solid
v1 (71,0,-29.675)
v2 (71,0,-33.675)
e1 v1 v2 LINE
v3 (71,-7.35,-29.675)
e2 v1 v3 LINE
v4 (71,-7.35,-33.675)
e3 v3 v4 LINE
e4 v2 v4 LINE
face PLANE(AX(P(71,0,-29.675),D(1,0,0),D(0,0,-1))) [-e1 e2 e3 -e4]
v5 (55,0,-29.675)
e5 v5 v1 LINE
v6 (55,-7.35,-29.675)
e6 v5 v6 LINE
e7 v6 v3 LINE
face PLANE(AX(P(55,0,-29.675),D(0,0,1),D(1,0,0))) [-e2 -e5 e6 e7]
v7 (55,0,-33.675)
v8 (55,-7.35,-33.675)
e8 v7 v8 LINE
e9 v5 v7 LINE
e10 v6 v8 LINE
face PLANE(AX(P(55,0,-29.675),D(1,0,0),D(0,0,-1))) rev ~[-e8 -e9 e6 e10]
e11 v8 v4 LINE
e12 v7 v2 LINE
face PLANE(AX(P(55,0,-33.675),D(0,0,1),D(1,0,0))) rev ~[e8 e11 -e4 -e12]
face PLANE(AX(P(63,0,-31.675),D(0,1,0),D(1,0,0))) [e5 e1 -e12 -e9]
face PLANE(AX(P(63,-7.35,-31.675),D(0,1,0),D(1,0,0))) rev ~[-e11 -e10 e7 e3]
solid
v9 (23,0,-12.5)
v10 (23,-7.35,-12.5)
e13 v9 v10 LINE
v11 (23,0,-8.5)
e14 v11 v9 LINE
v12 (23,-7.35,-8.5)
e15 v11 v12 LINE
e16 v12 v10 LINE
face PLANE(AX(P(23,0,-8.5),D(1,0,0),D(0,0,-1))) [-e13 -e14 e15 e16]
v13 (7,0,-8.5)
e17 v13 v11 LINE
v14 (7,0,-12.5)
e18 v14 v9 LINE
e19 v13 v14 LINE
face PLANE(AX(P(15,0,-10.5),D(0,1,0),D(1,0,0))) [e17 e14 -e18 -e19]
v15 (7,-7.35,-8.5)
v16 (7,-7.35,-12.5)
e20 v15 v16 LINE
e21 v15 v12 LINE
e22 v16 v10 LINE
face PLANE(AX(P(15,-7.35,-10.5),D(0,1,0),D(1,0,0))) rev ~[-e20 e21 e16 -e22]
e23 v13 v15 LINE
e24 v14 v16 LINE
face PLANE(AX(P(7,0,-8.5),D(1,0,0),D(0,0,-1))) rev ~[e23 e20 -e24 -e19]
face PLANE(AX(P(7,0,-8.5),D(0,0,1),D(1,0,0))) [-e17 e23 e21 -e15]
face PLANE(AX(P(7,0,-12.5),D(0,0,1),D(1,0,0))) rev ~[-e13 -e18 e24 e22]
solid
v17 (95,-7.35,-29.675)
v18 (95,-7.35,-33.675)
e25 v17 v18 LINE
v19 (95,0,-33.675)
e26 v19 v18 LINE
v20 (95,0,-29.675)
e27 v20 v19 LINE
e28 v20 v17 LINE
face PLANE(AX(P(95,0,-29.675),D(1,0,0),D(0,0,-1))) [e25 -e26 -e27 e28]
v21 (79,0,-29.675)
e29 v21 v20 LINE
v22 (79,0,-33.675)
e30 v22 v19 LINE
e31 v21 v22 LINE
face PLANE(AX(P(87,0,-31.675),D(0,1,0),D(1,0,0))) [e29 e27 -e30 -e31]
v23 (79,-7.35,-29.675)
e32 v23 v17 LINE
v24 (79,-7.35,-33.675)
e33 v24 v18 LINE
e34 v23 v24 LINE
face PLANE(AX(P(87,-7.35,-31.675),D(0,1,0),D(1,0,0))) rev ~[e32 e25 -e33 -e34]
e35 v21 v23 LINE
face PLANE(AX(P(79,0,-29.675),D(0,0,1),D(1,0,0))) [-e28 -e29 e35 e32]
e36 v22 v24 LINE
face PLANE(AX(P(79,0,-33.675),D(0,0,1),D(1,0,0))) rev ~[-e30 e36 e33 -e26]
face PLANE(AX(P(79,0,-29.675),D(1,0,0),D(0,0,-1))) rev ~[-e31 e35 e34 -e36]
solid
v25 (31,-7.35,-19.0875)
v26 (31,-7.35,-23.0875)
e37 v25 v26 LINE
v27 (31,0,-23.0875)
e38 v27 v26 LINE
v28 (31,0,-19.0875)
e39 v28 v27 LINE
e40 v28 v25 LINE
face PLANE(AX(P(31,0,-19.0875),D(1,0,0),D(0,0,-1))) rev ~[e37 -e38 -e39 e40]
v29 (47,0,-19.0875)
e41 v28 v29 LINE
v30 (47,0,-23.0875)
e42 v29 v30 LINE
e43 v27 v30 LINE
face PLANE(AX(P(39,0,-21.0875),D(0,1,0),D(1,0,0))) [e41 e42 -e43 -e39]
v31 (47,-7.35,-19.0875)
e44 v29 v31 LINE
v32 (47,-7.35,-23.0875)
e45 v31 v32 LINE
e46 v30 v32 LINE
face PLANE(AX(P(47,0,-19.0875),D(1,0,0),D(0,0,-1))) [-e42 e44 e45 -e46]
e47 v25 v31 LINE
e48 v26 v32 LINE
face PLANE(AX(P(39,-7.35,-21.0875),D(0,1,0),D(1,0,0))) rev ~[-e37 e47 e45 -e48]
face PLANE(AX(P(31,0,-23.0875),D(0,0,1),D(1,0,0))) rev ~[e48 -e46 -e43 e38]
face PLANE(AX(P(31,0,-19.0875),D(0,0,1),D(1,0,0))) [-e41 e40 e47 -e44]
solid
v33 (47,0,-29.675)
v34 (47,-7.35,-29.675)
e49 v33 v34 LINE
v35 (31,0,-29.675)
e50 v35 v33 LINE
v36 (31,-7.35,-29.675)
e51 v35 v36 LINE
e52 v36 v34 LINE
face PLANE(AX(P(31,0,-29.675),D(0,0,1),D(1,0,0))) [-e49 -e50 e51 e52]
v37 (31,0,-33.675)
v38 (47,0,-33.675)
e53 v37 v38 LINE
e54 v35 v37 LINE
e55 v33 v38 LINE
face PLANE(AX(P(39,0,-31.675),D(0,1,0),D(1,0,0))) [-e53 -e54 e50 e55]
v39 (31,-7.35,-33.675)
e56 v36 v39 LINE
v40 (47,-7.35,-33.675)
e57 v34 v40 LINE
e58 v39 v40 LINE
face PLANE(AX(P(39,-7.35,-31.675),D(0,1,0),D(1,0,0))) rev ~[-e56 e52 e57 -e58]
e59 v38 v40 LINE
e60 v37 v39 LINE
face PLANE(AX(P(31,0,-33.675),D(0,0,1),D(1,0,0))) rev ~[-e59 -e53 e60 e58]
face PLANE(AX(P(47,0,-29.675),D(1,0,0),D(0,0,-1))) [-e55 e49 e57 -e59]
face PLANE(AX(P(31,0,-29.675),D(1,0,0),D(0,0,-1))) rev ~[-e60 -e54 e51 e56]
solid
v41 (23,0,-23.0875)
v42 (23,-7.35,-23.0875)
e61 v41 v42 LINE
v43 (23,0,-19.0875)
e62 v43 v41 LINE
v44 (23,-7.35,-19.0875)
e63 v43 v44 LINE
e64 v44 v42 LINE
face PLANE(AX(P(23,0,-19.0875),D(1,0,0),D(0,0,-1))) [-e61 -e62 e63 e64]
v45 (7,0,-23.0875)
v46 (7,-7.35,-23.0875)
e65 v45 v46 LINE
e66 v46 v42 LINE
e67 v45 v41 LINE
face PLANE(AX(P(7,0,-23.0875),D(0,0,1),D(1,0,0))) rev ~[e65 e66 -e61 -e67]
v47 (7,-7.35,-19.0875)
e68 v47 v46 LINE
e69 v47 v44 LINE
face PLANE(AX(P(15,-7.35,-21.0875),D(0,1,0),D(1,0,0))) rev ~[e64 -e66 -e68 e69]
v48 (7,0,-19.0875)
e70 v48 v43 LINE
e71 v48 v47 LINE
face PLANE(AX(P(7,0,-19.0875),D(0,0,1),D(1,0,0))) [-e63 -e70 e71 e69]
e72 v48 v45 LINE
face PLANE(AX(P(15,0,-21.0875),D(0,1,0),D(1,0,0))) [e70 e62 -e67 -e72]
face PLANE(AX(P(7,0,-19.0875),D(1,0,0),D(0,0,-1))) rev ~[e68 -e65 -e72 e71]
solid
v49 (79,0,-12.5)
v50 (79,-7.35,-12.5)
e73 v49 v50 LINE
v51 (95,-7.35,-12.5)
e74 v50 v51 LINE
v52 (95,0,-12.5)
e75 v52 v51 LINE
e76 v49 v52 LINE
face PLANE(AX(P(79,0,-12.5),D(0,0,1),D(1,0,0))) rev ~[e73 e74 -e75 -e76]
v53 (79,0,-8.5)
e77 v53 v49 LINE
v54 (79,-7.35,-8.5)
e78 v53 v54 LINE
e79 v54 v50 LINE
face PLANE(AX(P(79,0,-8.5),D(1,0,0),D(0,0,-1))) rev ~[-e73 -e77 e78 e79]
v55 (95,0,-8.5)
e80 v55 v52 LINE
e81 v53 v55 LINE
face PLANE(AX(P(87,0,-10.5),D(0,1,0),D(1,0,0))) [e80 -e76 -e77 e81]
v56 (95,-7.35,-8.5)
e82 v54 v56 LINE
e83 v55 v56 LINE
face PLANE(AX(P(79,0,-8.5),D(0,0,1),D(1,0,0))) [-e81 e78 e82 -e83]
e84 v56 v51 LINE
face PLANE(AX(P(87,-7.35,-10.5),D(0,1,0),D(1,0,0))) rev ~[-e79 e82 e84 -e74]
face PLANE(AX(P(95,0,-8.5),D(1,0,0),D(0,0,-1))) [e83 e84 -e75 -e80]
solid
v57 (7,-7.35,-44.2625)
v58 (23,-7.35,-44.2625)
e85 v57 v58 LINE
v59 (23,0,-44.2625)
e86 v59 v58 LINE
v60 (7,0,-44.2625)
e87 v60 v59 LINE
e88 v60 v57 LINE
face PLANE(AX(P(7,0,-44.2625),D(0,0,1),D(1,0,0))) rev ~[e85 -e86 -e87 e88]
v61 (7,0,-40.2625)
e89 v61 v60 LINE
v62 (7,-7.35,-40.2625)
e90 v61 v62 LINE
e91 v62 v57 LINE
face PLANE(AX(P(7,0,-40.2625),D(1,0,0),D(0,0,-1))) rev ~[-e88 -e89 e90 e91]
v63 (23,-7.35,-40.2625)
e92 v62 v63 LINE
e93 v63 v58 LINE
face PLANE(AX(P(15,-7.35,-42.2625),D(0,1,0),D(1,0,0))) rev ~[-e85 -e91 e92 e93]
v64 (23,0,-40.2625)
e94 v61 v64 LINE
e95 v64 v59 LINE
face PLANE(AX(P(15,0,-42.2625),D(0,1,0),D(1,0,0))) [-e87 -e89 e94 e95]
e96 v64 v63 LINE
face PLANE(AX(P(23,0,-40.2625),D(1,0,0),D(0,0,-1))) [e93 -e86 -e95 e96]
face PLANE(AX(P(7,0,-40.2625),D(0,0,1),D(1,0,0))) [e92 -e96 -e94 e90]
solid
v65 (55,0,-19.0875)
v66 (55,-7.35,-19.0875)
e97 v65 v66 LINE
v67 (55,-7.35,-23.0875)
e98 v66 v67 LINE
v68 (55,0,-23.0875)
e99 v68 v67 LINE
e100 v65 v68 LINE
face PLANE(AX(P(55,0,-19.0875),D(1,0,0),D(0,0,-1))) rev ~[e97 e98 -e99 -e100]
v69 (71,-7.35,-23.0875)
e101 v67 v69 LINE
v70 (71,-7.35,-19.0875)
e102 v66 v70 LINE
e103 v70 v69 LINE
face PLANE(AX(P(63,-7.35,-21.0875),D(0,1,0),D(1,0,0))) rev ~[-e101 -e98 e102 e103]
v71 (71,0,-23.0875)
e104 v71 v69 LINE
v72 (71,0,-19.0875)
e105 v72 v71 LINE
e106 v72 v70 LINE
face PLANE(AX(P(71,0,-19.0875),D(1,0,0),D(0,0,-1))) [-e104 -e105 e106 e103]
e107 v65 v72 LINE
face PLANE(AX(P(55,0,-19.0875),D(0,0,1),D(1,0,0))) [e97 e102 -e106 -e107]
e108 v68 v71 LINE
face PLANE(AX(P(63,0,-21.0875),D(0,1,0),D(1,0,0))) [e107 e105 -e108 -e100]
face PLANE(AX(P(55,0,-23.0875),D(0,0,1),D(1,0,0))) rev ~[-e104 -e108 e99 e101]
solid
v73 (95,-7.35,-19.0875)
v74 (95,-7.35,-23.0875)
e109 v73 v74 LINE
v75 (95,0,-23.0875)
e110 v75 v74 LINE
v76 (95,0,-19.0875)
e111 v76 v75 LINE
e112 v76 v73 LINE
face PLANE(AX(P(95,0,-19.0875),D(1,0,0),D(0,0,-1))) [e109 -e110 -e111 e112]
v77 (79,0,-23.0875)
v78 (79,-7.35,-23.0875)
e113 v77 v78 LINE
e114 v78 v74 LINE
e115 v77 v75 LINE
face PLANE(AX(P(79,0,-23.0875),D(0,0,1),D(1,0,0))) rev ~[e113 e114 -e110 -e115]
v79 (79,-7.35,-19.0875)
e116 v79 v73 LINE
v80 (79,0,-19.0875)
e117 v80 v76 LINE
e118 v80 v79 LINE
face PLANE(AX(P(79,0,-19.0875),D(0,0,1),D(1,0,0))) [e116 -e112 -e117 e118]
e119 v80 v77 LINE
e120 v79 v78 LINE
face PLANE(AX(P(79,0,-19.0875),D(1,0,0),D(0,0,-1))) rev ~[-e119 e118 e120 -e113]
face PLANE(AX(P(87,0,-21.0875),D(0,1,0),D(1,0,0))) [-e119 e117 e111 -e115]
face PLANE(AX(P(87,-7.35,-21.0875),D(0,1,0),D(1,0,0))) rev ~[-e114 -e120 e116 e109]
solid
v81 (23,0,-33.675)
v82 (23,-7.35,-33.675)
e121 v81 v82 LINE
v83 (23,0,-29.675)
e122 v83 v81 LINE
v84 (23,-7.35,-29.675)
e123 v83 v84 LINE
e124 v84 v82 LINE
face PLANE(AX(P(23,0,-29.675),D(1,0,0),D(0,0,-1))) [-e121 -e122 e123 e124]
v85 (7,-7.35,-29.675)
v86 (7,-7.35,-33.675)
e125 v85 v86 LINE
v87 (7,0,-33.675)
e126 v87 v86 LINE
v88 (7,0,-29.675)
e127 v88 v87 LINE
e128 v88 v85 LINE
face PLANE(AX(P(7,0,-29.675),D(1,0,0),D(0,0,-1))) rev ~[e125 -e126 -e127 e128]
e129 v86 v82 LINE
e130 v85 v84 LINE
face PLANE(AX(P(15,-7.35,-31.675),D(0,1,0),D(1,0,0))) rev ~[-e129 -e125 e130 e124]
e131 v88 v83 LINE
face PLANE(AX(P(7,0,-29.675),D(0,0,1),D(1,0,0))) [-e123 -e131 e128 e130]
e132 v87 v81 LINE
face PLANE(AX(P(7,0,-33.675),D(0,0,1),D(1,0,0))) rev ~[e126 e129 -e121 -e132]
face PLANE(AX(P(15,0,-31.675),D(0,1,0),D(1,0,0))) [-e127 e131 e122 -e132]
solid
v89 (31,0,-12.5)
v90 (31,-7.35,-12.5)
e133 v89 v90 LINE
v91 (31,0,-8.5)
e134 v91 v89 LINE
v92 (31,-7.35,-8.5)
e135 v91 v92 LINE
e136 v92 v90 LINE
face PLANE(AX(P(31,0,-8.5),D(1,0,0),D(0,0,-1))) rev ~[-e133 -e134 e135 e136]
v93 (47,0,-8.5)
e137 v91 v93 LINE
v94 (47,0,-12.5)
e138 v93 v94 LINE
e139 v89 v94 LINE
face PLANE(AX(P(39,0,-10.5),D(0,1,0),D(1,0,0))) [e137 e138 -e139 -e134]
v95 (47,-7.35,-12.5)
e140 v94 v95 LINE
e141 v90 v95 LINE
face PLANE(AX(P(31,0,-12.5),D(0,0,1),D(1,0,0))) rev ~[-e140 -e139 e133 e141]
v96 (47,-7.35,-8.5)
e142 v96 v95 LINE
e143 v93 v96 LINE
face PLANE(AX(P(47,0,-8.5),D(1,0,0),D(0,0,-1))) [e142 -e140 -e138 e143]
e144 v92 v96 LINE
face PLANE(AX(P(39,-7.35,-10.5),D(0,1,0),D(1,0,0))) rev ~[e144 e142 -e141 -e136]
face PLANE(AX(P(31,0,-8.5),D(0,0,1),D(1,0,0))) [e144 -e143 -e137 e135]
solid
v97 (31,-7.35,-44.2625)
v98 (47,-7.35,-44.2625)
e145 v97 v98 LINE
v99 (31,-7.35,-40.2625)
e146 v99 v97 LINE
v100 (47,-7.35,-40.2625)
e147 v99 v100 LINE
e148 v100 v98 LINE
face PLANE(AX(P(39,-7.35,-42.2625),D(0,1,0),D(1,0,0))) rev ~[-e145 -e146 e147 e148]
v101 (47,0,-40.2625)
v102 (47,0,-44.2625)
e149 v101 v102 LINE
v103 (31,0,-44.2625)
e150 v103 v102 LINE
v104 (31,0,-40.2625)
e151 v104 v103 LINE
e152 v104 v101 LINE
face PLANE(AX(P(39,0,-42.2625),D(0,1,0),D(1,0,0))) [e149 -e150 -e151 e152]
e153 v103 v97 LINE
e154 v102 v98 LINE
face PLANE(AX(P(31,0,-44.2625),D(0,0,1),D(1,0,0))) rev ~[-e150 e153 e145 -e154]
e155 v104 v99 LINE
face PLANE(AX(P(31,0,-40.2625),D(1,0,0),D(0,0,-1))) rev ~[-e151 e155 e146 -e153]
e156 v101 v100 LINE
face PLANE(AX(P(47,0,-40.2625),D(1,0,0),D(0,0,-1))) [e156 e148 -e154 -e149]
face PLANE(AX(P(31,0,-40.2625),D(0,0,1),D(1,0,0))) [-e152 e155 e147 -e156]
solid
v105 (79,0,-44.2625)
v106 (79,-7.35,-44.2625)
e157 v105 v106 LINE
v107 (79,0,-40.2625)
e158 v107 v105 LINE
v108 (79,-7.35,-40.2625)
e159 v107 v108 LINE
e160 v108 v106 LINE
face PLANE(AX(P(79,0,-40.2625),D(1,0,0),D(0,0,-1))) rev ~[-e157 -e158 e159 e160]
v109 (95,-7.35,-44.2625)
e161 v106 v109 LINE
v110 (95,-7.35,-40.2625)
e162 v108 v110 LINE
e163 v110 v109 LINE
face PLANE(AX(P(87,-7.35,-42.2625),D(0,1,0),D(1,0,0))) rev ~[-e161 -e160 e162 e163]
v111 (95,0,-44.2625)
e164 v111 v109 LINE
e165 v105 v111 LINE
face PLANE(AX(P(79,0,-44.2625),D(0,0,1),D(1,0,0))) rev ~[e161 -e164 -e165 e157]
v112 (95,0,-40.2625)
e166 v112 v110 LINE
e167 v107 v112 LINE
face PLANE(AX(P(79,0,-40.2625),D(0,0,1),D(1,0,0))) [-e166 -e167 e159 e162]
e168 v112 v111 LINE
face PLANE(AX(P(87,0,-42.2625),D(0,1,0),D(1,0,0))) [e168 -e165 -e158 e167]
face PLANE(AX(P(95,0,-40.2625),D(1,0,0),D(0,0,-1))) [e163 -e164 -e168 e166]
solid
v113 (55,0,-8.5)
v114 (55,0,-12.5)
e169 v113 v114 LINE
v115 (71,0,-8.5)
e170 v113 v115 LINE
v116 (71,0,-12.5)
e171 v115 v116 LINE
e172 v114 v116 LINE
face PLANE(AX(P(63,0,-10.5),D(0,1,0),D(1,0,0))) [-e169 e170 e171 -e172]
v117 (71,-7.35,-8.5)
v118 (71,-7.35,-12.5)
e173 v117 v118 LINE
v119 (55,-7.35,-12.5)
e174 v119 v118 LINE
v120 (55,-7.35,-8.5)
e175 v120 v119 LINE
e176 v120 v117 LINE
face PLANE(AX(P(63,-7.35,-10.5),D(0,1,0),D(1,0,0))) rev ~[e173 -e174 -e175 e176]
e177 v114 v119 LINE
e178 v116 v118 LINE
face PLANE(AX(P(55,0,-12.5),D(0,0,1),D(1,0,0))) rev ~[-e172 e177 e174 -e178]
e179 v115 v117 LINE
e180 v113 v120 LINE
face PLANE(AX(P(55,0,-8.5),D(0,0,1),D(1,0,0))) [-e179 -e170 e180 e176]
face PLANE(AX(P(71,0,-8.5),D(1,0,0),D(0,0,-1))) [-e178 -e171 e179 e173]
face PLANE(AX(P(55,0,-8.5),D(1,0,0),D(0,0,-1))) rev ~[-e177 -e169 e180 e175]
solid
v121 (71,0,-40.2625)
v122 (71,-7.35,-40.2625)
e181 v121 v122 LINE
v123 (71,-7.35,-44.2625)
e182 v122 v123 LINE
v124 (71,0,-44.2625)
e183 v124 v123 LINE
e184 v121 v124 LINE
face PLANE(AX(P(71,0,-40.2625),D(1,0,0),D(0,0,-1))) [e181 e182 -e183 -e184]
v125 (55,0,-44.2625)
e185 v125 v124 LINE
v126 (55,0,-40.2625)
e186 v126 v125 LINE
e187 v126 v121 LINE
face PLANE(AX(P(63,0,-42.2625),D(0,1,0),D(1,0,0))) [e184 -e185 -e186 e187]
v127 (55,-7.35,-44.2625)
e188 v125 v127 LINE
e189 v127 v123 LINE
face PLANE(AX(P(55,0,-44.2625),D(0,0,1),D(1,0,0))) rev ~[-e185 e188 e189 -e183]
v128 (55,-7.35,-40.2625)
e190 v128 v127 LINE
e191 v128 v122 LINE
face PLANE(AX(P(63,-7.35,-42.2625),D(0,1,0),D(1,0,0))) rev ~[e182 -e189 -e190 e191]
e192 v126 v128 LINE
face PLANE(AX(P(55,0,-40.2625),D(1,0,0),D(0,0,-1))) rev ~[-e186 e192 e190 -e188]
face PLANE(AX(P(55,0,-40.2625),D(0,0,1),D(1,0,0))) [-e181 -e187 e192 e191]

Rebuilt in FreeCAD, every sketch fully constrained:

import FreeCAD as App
import Part
import Sketcher
from FreeCAD import Vector

doc = App.newDocument("Part")
params = doc.addObject("Spreadsheet::Sheet", "Params")
for row, (alias, value) in enumerate([
    ("sketch1_width", "16 mm"),
    ("sketch1_height", "4 mm"),
    ("pad1_length", "7.35 mm"),
    ("sketch2_width", "16 mm"),
    ("sketch2_height", "4 mm"),
    ("pad2_length", "7.35 mm"),
    ("sketch3_width", "16 mm"),
    ("sketch3_height", "4 mm"),
    ("pad3_length", "7.35 mm"),
    ("sketch4_width", "16 mm"),
    ("sketch4_height", "4 mm"),
    ("pad4_length", "7.35 mm"),
    ("sketch5_width", "16 mm"),
    ("sketch5_height", "4 mm"),
    ("pad5_length", "7.35 mm"),
    ("sketch6_width", "16 mm"),
    ("sketch6_height", "4 mm"),
    ("pad6_length", "7.35 mm"),
    ("sketch7_width", "16 mm"),
    ("sketch7_height", "4 mm"),
    ("pad7_length", "7.35 mm"),
    ("sketch8_width", "16 mm"),
    ("sketch8_height", "4 mm"),
    ("pad8_length", "7.35 mm"),
    ("sketch9_width", "16 mm"),
    ("sketch9_height", "4 mm"),
    ("pad9_length", "7.35 mm"),
    ("sketch10_width", "16 mm"),
    ("sketch10_height", "4 mm"),
    ("pad10_length", "7.35 mm"),
    ("sketch11_width", "16 mm"),
    ("sketch11_height", "4 mm"),
    ("pad11_length", "7.35 mm"),
    ("sketch12_width", "16 mm"),
    ("sketch12_height", "4 mm"),
    ("pad12_length", "7.35 mm"),
    ("sketch13_width", "16 mm"),
    ("sketch13_height", "4 mm"),
    ("pad13_length", "7.35 mm"),
    ("sketch14_width", "16 mm"),
    ("sketch14_height", "4 mm"),
    ("pad14_length", "7.35 mm"),
    ("sketch15_width", "16 mm"),
    ("sketch15_height", "4 mm"),
    ("pad15_length", "7.35 mm"),
    ("sketch16_width", "16 mm"),
    ("sketch16_height", "4 mm"),
    ("pad16_length", "7.35 mm"),
], start=1):
    params.set(f"A{row}", alias)
    params.set(f"B{row}", "=" + value)
    params.setAlias(f"B{row}", alias)

body = doc.addObject("PartDesign::Body", "Body")

# Sketch on XZ plane
sketch1 = body.newObject("Sketcher::SketchObject", "Sketch")
sketch1.AttachmentSupport = (doc.getObject("XZ_Plane"), [""])
sketch1.MapMode = "FlatFace"
sketch1.addGeometry([
    Part.LineSegment(Vector(31, -12.5, 0), Vector(31, -8.5, 0)),
    Part.LineSegment(Vector(31, -8.5, 0), Vector(47, -8.5, 0)),
    Part.LineSegment(Vector(47, -8.5, 0), Vector(47, -12.5, 0)),
    Part.LineSegment(Vector(47, -12.5, 0), Vector(31, -12.5, 0)),
], False)
sketch1.addConstraint([
    Sketcher.Constraint("Coincident", 0, 2, 1, 1),
    Sketcher.Constraint("Coincident", 1, 2, 2, 1),
    Sketcher.Constraint("Coincident", 2, 2, 3, 1),
    Sketcher.Constraint("Coincident", 3, 2, 0, 1),
    Sketcher.Constraint("Vertical", 0),
    Sketcher.Constraint("Horizontal", 1),
    Sketcher.Constraint("Vertical", 2),
    Sketcher.Constraint("Horizontal", 3),
    Sketcher.Constraint("DistanceX", 1, 1, 1, 2, 16.0),
    Sketcher.Constraint("DistanceY", 0, 1, 0, 2, 4.0),
    Sketcher.Constraint("DistanceX", -1, 1, 0, 2, 31.0),
    Sketcher.Constraint("DistanceY", 0, 2, -1, 1, 8.5),
])
sketch1.setExpression("Constraints[8]", "Params.sketch1_width")
sketch1.setExpression("Constraints[9]", "Params.sketch1_height")
pad1 = body.newObject("PartDesign::Pad", "Pad")
pad1.Profile = sketch1
pad1.setExpression("Length", "Params.pad1_length")
body2 = doc.addObject("PartDesign::Body", "Body001")

# Sketch on XZ plane
sketch2 = body2.newObject("Sketcher::SketchObject", "Sketch001")
sketch2.AttachmentSupport = (doc.getObject("XZ_Plane001"), [""])
sketch2.MapMode = "FlatFace"
sketch2.addGeometry([
    Part.LineSegment(Vector(7, -12.5, 0), Vector(7, -8.5, 0)),
    Part.LineSegment(Vector(7, -8.5, 0), Vector(23, -8.5, 0)),
    Part.LineSegment(Vector(23, -8.5, 0), Vector(23, -12.5, 0)),
    Part.LineSegment(Vector(23, -12.5, 0), Vector(7, -12.5, 0)),
], False)
sketch2.addConstraint([
    Sketcher.Constraint("Coincident", 0, 2, 1, 1),
    Sketcher.Constraint("Coincident", 1, 2, 2, 1),
    Sketcher.Constraint("Coincident", 2, 2, 3, 1),
    Sketcher.Constraint("Coincident", 3, 2, 0, 1),
    Sketcher.Constraint("Vertical", 0),
    Sketcher.Constraint("Horizontal", 1),
    Sketcher.Constraint("Vertical", 2),
    Sketcher.Constraint("Horizontal", 3),
    Sketcher.Constraint("DistanceX", 1, 1, 1, 2, 16.0),
    Sketcher.Constraint("DistanceY", 0, 1, 0, 2, 4.0),
    Sketcher.Constraint("DistanceX", -1, 1, 0, 2, 7.0),
    Sketcher.Constraint("DistanceY", 0, 2, -1, 1, 8.5),
])
sketch2.setExpression("Constraints[8]", "Params.sketch2_width")
sketch2.setExpression("Constraints[9]", "Params.sketch2_height")
pad2 = body2.newObject("PartDesign::Pad", "Pad001")
pad2.Profile = sketch2
pad2.setExpression("Length", "Params.pad2_length")
body3 = doc.addObject("PartDesign::Body", "Body002")

# Sketch on XZ plane
sketch3 = body3.newObject("Sketcher::SketchObject", "Sketch002")
sketch3.AttachmentSupport = (doc.getObject("XZ_Plane002"), [""])
sketch3.MapMode = "FlatFace"
sketch3.addGeometry([
    Part.LineSegment(Vector(55, -12.5, 0), Vector(55, -8.5, 0)),
    Part.LineSegment(Vector(55, -8.5, 0), Vector(71, -8.5, 0)),
    Part.LineSegment(Vector(71, -8.5, 0), Vector(71, -12.5, 0)),
    Part.LineSegment(Vector(71, -12.5, 0), Vector(55, -12.5, 0)),
], False)
sketch3.addConstraint([
    Sketcher.Constraint("Coincident", 0, 2, 1, 1),
    Sketcher.Constraint("Coincident", 1, 2, 2, 1),
    Sketcher.Constraint("Coincident", 2, 2, 3, 1),
    Sketcher.Constraint("Coincident", 3, 2, 0, 1),
    Sketcher.Constraint("Vertical", 0),
    Sketcher.Constraint("Horizontal", 1),
    Sketcher.Constraint("Vertical", 2),
    Sketcher.Constraint("Horizontal", 3),
    Sketcher.Constraint("DistanceX", 1, 1, 1, 2, 16.0),
    Sketcher.Constraint("DistanceY", 0, 1, 0, 2, 4.0),
    Sketcher.Constraint("DistanceX", -1, 1, 0, 2, 55.0),
    Sketcher.Constraint("DistanceY", 0, 2, -1, 1, 8.5),
])
sketch3.setExpression("Constraints[8]", "Params.sketch3_width")
sketch3.setExpression("Constraints[9]", "Params.sketch3_height")
pad3 = body3.newObject("PartDesign::Pad", "Pad002")
pad3.Profile = sketch3
pad3.setExpression("Length", "Params.pad3_length")
body4 = doc.addObject("PartDesign::Body", "Body003")

# Sketch on XZ plane
sketch4 = body4.newObject("Sketcher::SketchObject", "Sketch003")
sketch4.AttachmentSupport = (doc.getObject("XZ_Plane003"), [""])
sketch4.MapMode = "FlatFace"
sketch4.addGeometry([
    Part.LineSegment(Vector(79, -12.5, 0), Vector(79, -8.5, 0)),
    Part.LineSegment(Vector(79, -8.5, 0), Vector(95, -8.5, 0)),
    Part.LineSegment(Vector(95, -8.5, 0), Vector(95, -12.5, 0)),
    Part.LineSegment(Vector(95, -12.5, 0), Vector(79, -12.5, 0)),
], False)
sketch4.addConstraint([
    Sketcher.Constraint("Coincident", 0, 2, 1, 1),
    Sketcher.Constraint("Coincident", 1, 2, 2, 1),
    Sketcher.Constraint("Coincident", 2, 2, 3, 1),
    Sketcher.Constraint("Coincident", 3, 2, 0, 1),
    Sketcher.Constraint("Vertical", 0),
    Sketcher.Constraint("Horizontal", 1),
    Sketcher.Constraint("Vertical", 2),
    Sketcher.Constraint("Horizontal", 3),
    Sketcher.Constraint("DistanceX", 1, 1, 1, 2, 16.0),
    Sketcher.Constraint("DistanceY", 0, 1, 0, 2, 4.0),
    Sketcher.Constraint("DistanceX", -1, 1, 0, 2, 79.0),
    Sketcher.Constraint("DistanceY", 0, 2, -1, 1, 8.5),
])
sketch4.setExpression("Constraints[8]", "Params.sketch4_width")
sketch4.setExpression("Constraints[9]", "Params.sketch4_height")
pad4 = body4.newObject("PartDesign::Pad", "Pad003")
pad4.Profile = sketch4
pad4.setExpression("Length", "Params.pad4_length")
body5 = doc.addObject("PartDesign::Body", "Body004")

# Sketch on XZ plane
sketch5 = body5.newObject("Sketcher::SketchObject", "Sketch004")
sketch5.AttachmentSupport = (doc.getObject("XZ_Plane004"), [""])
sketch5.MapMode = "FlatFace"
sketch5.addGeometry([
    Part.LineSegment(Vector(7, -23.1, 0), Vector(7, -19.1, 0)),
    Part.LineSegment(Vector(7, -19.1, 0), Vector(23, -19.1, 0)),
    Part.LineSegment(Vector(23, -19.1, 0), Vector(23, -23.1, 0)),
    Part.LineSegment(Vector(23, -23.1, 0), Vector(7, -23.1, 0)),
], False)
sketch5.addConstraint([
    Sketcher.Constraint("Coincident", 0, 2, 1, 1),
    Sketcher.Constraint("Coincident", 1, 2, 2, 1),
    Sketcher.Constraint("Coincident", 2, 2, 3, 1),
    Sketcher.Constraint("Coincident", 3, 2, 0, 1),
    Sketcher.Constraint("Vertical", 0),
    Sketcher.Constraint("Horizontal", 1),
    Sketcher.Constraint("Vertical", 2),
    Sketcher.Constraint("Horizontal", 3),
    Sketcher.Constraint("DistanceX", 1, 1, 1, 2, 16.0),
    Sketcher.Constraint("DistanceY", 0, 1, 0, 2, 4.0),
    Sketcher.Constraint("DistanceX", -1, 1, 0, 2, 7.0),
    Sketcher.Constraint("DistanceY", 0, 2, -1, 1, 19.0875),
])
sketch5.setExpression("Constraints[8]", "Params.sketch5_width")
sketch5.setExpression("Constraints[9]", "Params.sketch5_height")
pad5 = body5.newObject("PartDesign::Pad", "Pad004")
pad5.Profile = sketch5
pad5.setExpression("Length", "Params.pad5_length")
body6 = doc.addObject("PartDesign::Body", "Body005")

# Sketch on XZ plane
sketch6 = body6.newObject("Sketcher::SketchObject", "Sketch005")
sketch6.AttachmentSupport = (doc.getObject("XZ_Plane005"), [""])
sketch6.MapMode = "FlatFace"
sketch6.addGeometry([
    Part.LineSegment(Vector(31, -23.1, 0), Vector(31, -19.1, 0)),
    Part.LineSegment(Vector(31, -19.1, 0), Vector(47, -19.1, 0)),
    Part.LineSegment(Vector(47, -19.1, 0), Vector(47, -23.1, 0)),
    Part.LineSegment(Vector(47, -23.1, 0), Vector(31, -23.1, 0)),
], False)
sketch6.addConstraint([
    Sketcher.Constraint("Coincident", 0, 2, 1, 1),
    Sketcher.Constraint("Coincident", 1, 2, 2, 1),
    Sketcher.Constraint("Coincident", 2, 2, 3, 1),
    Sketcher.Constraint("Coincident", 3, 2, 0, 1),
    Sketcher.Constraint("Vertical", 0),
    Sketcher.Constraint("Horizontal", 1),
    Sketcher.Constraint("Vertical", 2),
    Sketcher.Constraint("Horizontal", 3),
    Sketcher.Constraint("DistanceX", 1, 1, 1, 2, 16.0),
    Sketcher.Constraint("DistanceY", 0, 1, 0, 2, 4.0),
    Sketcher.Constraint("DistanceX", -1, 1, 0, 2, 31.0),
    Sketcher.Constraint("DistanceY", 0, 2, -1, 1, 19.0875),
])
sketch6.setExpression("Constraints[8]", "Params.sketch6_width")
sketch6.setExpression("Constraints[9]", "Params.sketch6_height")
pad6 = body6.newObject("PartDesign::Pad", "Pad005")
pad6.Profile = sketch6
pad6.setExpression("Length", "Params.pad6_length")
body7 = doc.addObject("PartDesign::Body", "Body006")

# Sketch on XZ plane
sketch7 = body7.newObject("Sketcher::SketchObject", "Sketch006")
sketch7.AttachmentSupport = (doc.getObject("XZ_Plane006"), [""])
sketch7.MapMode = "FlatFace"
sketch7.addGeometry([
    Part.LineSegment(Vector(55, -23.1, 0), Vector(55, -19.1, 0)),
    Part.LineSegment(Vector(55, -19.1, 0), Vector(71, -19.1, 0)),
    Part.LineSegment(Vector(71, -19.1, 0), Vector(71, -23.1, 0)),
    Part.LineSegment(Vector(71, -23.1, 0), Vector(55, -23.1, 0)),
], False)
sketch7.addConstraint([
    Sketcher.Constraint("Coincident", 0, 2, 1, 1),
    Sketcher.Constraint("Coincident", 1, 2, 2, 1),
    Sketcher.Constraint("Coincident", 2, 2, 3, 1),
    Sketcher.Constraint("Coincident", 3, 2, 0, 1),
    Sketcher.Constraint("Vertical", 0),
    Sketcher.Constraint("Horizontal", 1),
    Sketcher.Constraint("Vertical", 2),
    Sketcher.Constraint("Horizontal", 3),
    Sketcher.Constraint("DistanceX", 1, 1, 1, 2, 16.0),
    Sketcher.Constraint("DistanceY", 0, 1, 0, 2, 4.0),
    Sketcher.Constraint("DistanceX", -1, 1, 0, 2, 55.0),
    Sketcher.Constraint("DistanceY", 0, 2, -1, 1, 19.0875),
])
sketch7.setExpression("Constraints[8]", "Params.sketch7_width")
sketch7.setExpression("Constraints[9]", "Params.sketch7_height")
pad7 = body7.newObject("PartDesign::Pad", "Pad006")
pad7.Profile = sketch7
pad7.setExpression("Length", "Params.pad7_length")
body8 = doc.addObject("PartDesign::Body", "Body007")

# Sketch on XZ plane
sketch8 = body8.newObject("Sketcher::SketchObject", "Sketch007")
sketch8.AttachmentSupport = (doc.getObject("XZ_Plane007"), [""])
sketch8.MapMode = "FlatFace"
sketch8.addGeometry([
    Part.LineSegment(Vector(79, -23.1, 0), Vector(79, -19.1, 0)),
    Part.LineSegment(Vector(79, -19.1, 0), Vector(95, -19.1, 0)),
    Part.LineSegment(Vector(95, -19.1, 0), Vector(95, -23.1, 0)),
    Part.LineSegment(Vector(95, -23.1, 0), Vector(79, -23.1, 0)),
], False)
sketch8.addConstraint([
    Sketcher.Constraint("Coincident", 0, 2, 1, 1),
    Sketcher.Constraint("Coincident", 1, 2, 2, 1),
    Sketcher.Constraint("Coincident", 2, 2, 3, 1),
    Sketcher.Constraint("Coincident", 3, 2, 0, 1),
    Sketcher.Constraint("Vertical", 0),
    Sketcher.Constraint("Horizontal", 1),
    Sketcher.Constraint("Vertical", 2),
    Sketcher.Constraint("Horizontal", 3),
    Sketcher.Constraint("DistanceX", 1, 1, 1, 2, 16.0),
    Sketcher.Constraint("DistanceY", 0, 1, 0, 2, 4.0),
    Sketcher.Constraint("DistanceX", -1, 1, 0, 2, 79.0),
    Sketcher.Constraint("DistanceY", 0, 2, -1, 1, 19.0875),
])
sketch8.setExpression("Constraints[8]", "Params.sketch8_width")
sketch8.setExpression("Constraints[9]", "Params.sketch8_height")
pad8 = body8.newObject("PartDesign::Pad", "Pad007")
pad8.Profile = sketch8
pad8.setExpression("Length", "Params.pad8_length")
body9 = doc.addObject("PartDesign::Body", "Body008")

# Sketch on XZ plane
sketch9 = body9.newObject("Sketcher::SketchObject", "Sketch008")
sketch9.AttachmentSupport = (doc.getObject("XZ_Plane008"), [""])
sketch9.MapMode = "FlatFace"
sketch9.addGeometry([
    Part.LineSegment(Vector(7, -33.7, 0), Vector(7, -29.7, 0)),
    Part.LineSegment(Vector(7, -29.7, 0), Vector(23, -29.7, 0)),
    Part.LineSegment(Vector(23, -29.7, 0), Vector(23, -33.7, 0)),
    Part.LineSegment(Vector(23, -33.7, 0), Vector(7, -33.7, 0)),
], False)
sketch9.addConstraint([
    Sketcher.Constraint("Coincident", 0, 2, 1, 1),
    Sketcher.Constraint("Coincident", 1, 2, 2, 1),
    Sketcher.Constraint("Coincident", 2, 2, 3, 1),
    Sketcher.Constraint("Coincident", 3, 2, 0, 1),
    Sketcher.Constraint("Vertical", 0),
    Sketcher.Constraint("Horizontal", 1),
    Sketcher.Constraint("Vertical", 2),
    Sketcher.Constraint("Horizontal", 3),
    Sketcher.Constraint("DistanceX", 1, 1, 1, 2, 16.0),
    Sketcher.Constraint("DistanceY", 0, 1, 0, 2, 4.0),
    Sketcher.Constraint("DistanceX", -1, 1, 0, 2, 7.0),
    Sketcher.Constraint("DistanceY", 0, 2, -1, 1, 29.675),
])
sketch9.setExpression("Constraints[8]", "Params.sketch9_width")
sketch9.setExpression("Constraints[9]", "Params.sketch9_height")
pad9 = body9.newObject("PartDesign::Pad", "Pad008")
pad9.Profile = sketch9
pad9.setExpression("Length", "Params.pad9_length")
body10 = doc.addObject("PartDesign::Body", "Body009")

# Sketch on XZ plane
sketch10 = body10.newObject("Sketcher::SketchObject", "Sketch009")
sketch10.AttachmentSupport = (doc.getObject("XZ_Plane009"), [""])
sketch10.MapMode = "FlatFace"
sketch10.addGeometry([
    Part.LineSegment(Vector(31, -33.7, 0), Vector(31, -29.7, 0)),
    Part.LineSegment(Vector(31, -29.7, 0), Vector(47, -29.7, 0)),
    Part.LineSegment(Vector(47, -29.7, 0), Vector(47, -33.7, 0)),
    Part.LineSegment(Vector(47, -33.7, 0), Vector(31, -33.7, 0)),
], False)
sketch10.addConstraint([
    Sketcher.Constraint("Coincident", 0, 2, 1, 1),
    Sketcher.Constraint("Coincident", 1, 2, 2, 1),
    Sketcher.Constraint("Coincident", 2, 2, 3, 1),
    Sketcher.Constraint("Coincident", 3, 2, 0, 1),
    Sketcher.Constraint("Vertical", 0),
    Sketcher.Constraint("Horizontal", 1),
    Sketcher.Constraint("Vertical", 2),
    Sketcher.Constraint("Horizontal", 3),
    Sketcher.Constraint("DistanceX", 1, 1, 1, 2, 16.0),
    Sketcher.Constraint("DistanceY", 0, 1, 0, 2, 4.0),
    Sketcher.Constraint("DistanceX", -1, 1, 0, 2, 31.0),
    Sketcher.Constraint("DistanceY", 0, 2, -1, 1, 29.675),
])
sketch10.setExpression("Constraints[8]", "Params.sketch10_width")
sketch10.setExpression("Constraints[9]", "Params.sketch10_height")
pad10 = body10.newObject("PartDesign::Pad", "Pad009")
pad10.Profile = sketch10
pad10.setExpression("Length", "Params.pad10_length")
body11 = doc.addObject("PartDesign::Body", "Body010")

# Sketch on XZ plane
sketch11 = body11.newObject("Sketcher::SketchObject", "Sketch010")
sketch11.AttachmentSupport = (doc.getObject("XZ_Plane010"), [""])
sketch11.MapMode = "FlatFace"
sketch11.addGeometry([
    Part.LineSegment(Vector(55, -33.7, 0), Vector(55, -29.7, 0)),
    Part.LineSegment(Vector(55, -29.7, 0), Vector(71, -29.7, 0)),
    Part.LineSegment(Vector(71, -29.7, 0), Vector(71, -33.7, 0)),
    Part.LineSegment(Vector(71, -33.7, 0), Vector(55, -33.7, 0)),
], False)
sketch11.addConstraint([
    Sketcher.Constraint("Coincident", 0, 2, 1, 1),
    Sketcher.Constraint("Coincident", 1, 2, 2, 1),
    Sketcher.Constraint("Coincident", 2, 2, 3, 1),
    Sketcher.Constraint("Coincident", 3, 2, 0, 1),
    Sketcher.Constraint("Vertical", 0),
    Sketcher.Constraint("Horizontal", 1),
    Sketcher.Constraint("Vertical", 2),
    Sketcher.Constraint("Horizontal", 3),
    Sketcher.Constraint("DistanceX", 1, 1, 1, 2, 16.0),
    Sketcher.Constraint("DistanceY", 0, 1, 0, 2, 4.0),
    Sketcher.Constraint("DistanceX", -1, 1, 0, 2, 55.0),
    Sketcher.Constraint("DistanceY", 0, 2, -1, 1, 29.675),
])
sketch11.setExpression("Constraints[8]", "Params.sketch11_width")
sketch11.setExpression("Constraints[9]", "Params.sketch11_height")
pad11 = body11.newObject("PartDesign::Pad", "Pad010")
pad11.Profile = sketch11
pad11.setExpression("Length", "Params.pad11_length")
body12 = doc.addObject("PartDesign::Body", "Body011")

# Sketch on XZ plane
sketch12 = body12.newObject("Sketcher::SketchObject", "Sketch011")
sketch12.AttachmentSupport = (doc.getObject("XZ_Plane011"), [""])
sketch12.MapMode = "FlatFace"
sketch12.addGeometry([
    Part.LineSegment(Vector(79, -33.7, 0), Vector(79, -29.7, 0)),
    Part.LineSegment(Vector(79, -29.7, 0), Vector(95, -29.7, 0)),
    Part.LineSegment(Vector(95, -29.7, 0), Vector(95, -33.7, 0)),
    Part.LineSegment(Vector(95, -33.7, 0), Vector(79, -33.7, 0)),
], False)
sketch12.addConstraint([
    Sketcher.Constraint("Coincident", 0, 2, 1, 1),
    Sketcher.Constraint("Coincident", 1, 2, 2, 1),
    Sketcher.Constraint("Coincident", 2, 2, 3, 1),
    Sketcher.Constraint("Coincident", 3, 2, 0, 1),
    Sketcher.Constraint("Vertical", 0),
    Sketcher.Constraint("Horizontal", 1),
    Sketcher.Constraint("Vertical", 2),
    Sketcher.Constraint("Horizontal", 3),
    Sketcher.Constraint("DistanceX", 1, 1, 1, 2, 16.0),
    Sketcher.Constraint("DistanceY", 0, 1, 0, 2, 4.0),
    Sketcher.Constraint("DistanceX", -1, 1, 0, 2, 79.0),
    Sketcher.Constraint("DistanceY", 0, 2, -1, 1, 29.675),
])
sketch12.setExpression("Constraints[8]", "Params.sketch12_width")
sketch12.setExpression("Constraints[9]", "Params.sketch12_height")
pad12 = body12.newObject("PartDesign::Pad", "Pad011")
pad12.Profile = sketch12
pad12.setExpression("Length", "Params.pad12_length")
body13 = doc.addObject("PartDesign::Body", "Body012")

# Sketch on XZ plane
sketch13 = body13.newObject("Sketcher::SketchObject", "Sketch012")
sketch13.AttachmentSupport = (doc.getObject("XZ_Plane012"), [""])
sketch13.MapMode = "FlatFace"
sketch13.addGeometry([
    Part.LineSegment(Vector(7, -44.3, 0), Vector(7, -40.3, 0)),
    Part.LineSegment(Vector(7, -40.3, 0), Vector(23, -40.3, 0)),
    Part.LineSegment(Vector(23, -40.3, 0), Vector(23, -44.3, 0)),
    Part.LineSegment(Vector(23, -44.3, 0), Vector(7, -44.3, 0)),
], False)
sketch13.addConstraint([
    Sketcher.Constraint("Coincident", 0, 2, 1, 1),
    Sketcher.Constraint("Coincident", 1, 2, 2, 1),
    Sketcher.Constraint("Coincident", 2, 2, 3, 1),
    Sketcher.Constraint("Coincident", 3, 2, 0, 1),
    Sketcher.Constraint("Vertical", 0),
    Sketcher.Constraint("Horizontal", 1),
    Sketcher.Constraint("Vertical", 2),
    Sketcher.Constraint("Horizontal", 3),
    Sketcher.Constraint("DistanceX", 1, 1, 1, 2, 16.0),
    Sketcher.Constraint("DistanceY", 0, 1, 0, 2, 4.0),
    Sketcher.Constraint("DistanceX", -1, 1, 0, 2, 7.0),
    Sketcher.Constraint("DistanceY", 0, 2, -1, 1, 40.2625),
])
sketch13.setExpression("Constraints[8]", "Params.sketch13_width")
sketch13.setExpression("Constraints[9]", "Params.sketch13_height")
pad13 = body13.newObject("PartDesign::Pad", "Pad012")
pad13.Profile = sketch13
pad13.setExpression("Length", "Params.pad13_length")
body14 = doc.addObject("PartDesign::Body", "Body013")

# Sketch on XZ plane
sketch14 = body14.newObject("Sketcher::SketchObject", "Sketch013")
sketch14.AttachmentSupport = (doc.getObject("XZ_Plane013"), [""])
sketch14.MapMode = "FlatFace"
sketch14.addGeometry([
    Part.LineSegment(Vector(31, -44.3, 0), Vector(31, -40.3, 0)),
    Part.LineSegment(Vector(31, -40.3, 0), Vector(47, -40.3, 0)),
    Part.LineSegment(Vector(47, -40.3, 0), Vector(47, -44.3, 0)),
    Part.LineSegment(Vector(47, -44.3, 0), Vector(31, -44.3, 0)),
], False)
sketch14.addConstraint([
    Sketcher.Constraint("Coincident", 0, 2, 1, 1),
    Sketcher.Constraint("Coincident", 1, 2, 2, 1),
    Sketcher.Constraint("Coincident", 2, 2, 3, 1),
    Sketcher.Constraint("Coincident", 3, 2, 0, 1),
    Sketcher.Constraint("Vertical", 0),
    Sketcher.Constraint("Horizontal", 1),
    Sketcher.Constraint("Vertical", 2),
    Sketcher.Constraint("Horizontal", 3),
    Sketcher.Constraint("DistanceX", 1, 1, 1, 2, 16.0),
    Sketcher.Constraint("DistanceY", 0, 1, 0, 2, 4.0),
    Sketcher.Constraint("DistanceX", -1, 1, 0, 2, 31.0),
    Sketcher.Constraint("DistanceY", 0, 2, -1, 1, 40.2625),
])
sketch14.setExpression("Constraints[8]", "Params.sketch14_width")
sketch14.setExpression("Constraints[9]", "Params.sketch14_height")
pad14 = body14.newObject("PartDesign::Pad", "Pad013")
pad14.Profile = sketch14
pad14.setExpression("Length", "Params.pad14_length")
body15 = doc.addObject("PartDesign::Body", "Body014")

# Sketch on XZ plane
sketch15 = body15.newObject("Sketcher::SketchObject", "Sketch014")
sketch15.AttachmentSupport = (doc.getObject("XZ_Plane014"), [""])
sketch15.MapMode = "FlatFace"
sketch15.addGeometry([
    Part.LineSegment(Vector(55, -44.3, 0), Vector(55, -40.3, 0)),
    Part.LineSegment(Vector(55, -40.3, 0), Vector(71, -40.3, 0)),
    Part.LineSegment(Vector(71, -40.3, 0), Vector(71, -44.3, 0)),
    Part.LineSegment(Vector(71, -44.3, 0), Vector(55, -44.3, 0)),
], False)
sketch15.addConstraint([
    Sketcher.Constraint("Coincident", 0, 2, 1, 1),
    Sketcher.Constraint("Coincident", 1, 2, 2, 1),
    Sketcher.Constraint("Coincident", 2, 2, 3, 1),
    Sketcher.Constraint("Coincident", 3, 2, 0, 1),
    Sketcher.Constraint("Vertical", 0),
    Sketcher.Constraint("Horizontal", 1),
    Sketcher.Constraint("Vertical", 2),
    Sketcher.Constraint("Horizontal", 3),
    Sketcher.Constraint("DistanceX", 1, 1, 1, 2, 16.0),
    Sketcher.Constraint("DistanceY", 0, 1, 0, 2, 4.0),
    Sketcher.Constraint("DistanceX", -1, 1, 0, 2, 55.0),
    Sketcher.Constraint("DistanceY", 0, 2, -1, 1, 40.2625),
])
sketch15.setExpression("Constraints[8]", "Params.sketch15_width")
sketch15.setExpression("Constraints[9]", "Params.sketch15_height")
pad15 = body15.newObject("PartDesign::Pad", "Pad014")
pad15.Profile = sketch15
pad15.setExpression("Length", "Params.pad15_length")
body16 = doc.addObject("PartDesign::Body", "Body015")

# Sketch on XZ plane
sketch16 = body16.newObject("Sketcher::SketchObject", "Sketch015")
sketch16.AttachmentSupport = (doc.getObject("XZ_Plane015"), [""])
sketch16.MapMode = "FlatFace"
sketch16.addGeometry([
    Part.LineSegment(Vector(79, -44.3, 0), Vector(79, -40.3, 0)),
    Part.LineSegment(Vector(79, -40.3, 0), Vector(95, -40.3, 0)),
    Part.LineSegment(Vector(95, -40.3, 0), Vector(95, -44.3, 0)),
    Part.LineSegment(Vector(95, -44.3, 0), Vector(79, -44.3, 0)),
], False)
sketch16.addConstraint([
    Sketcher.Constraint("Coincident", 0, 2, 1, 1),
    Sketcher.Constraint("Coincident", 1, 2, 2, 1),
    Sketcher.Constraint("Coincident", 2, 2, 3, 1),
    Sketcher.Constraint("Coincident", 3, 2, 0, 1),
    Sketcher.Constraint("Vertical", 0),
    Sketcher.Constraint("Horizontal", 1),
    Sketcher.Constraint("Vertical", 2),
    Sketcher.Constraint("Horizontal", 3),
    Sketcher.Constraint("DistanceX", 1, 1, 1, 2, 16.0),
    Sketcher.Constraint("DistanceY", 0, 1, 0, 2, 4.0),
    Sketcher.Constraint("DistanceX", -1, 1, 0, 2, 79.0),
    Sketcher.Constraint("DistanceY", 0, 2, -1, 1, 40.2625),
])
sketch16.setExpression("Constraints[8]", "Params.sketch16_width")
sketch16.setExpression("Constraints[9]", "Params.sketch16_height")
pad16 = body16.newObject("PartDesign::Pad", "Pad015")
pad16.Profile = sketch16
pad16.setExpression("Length", "Params.pad16_length")

doc.recompute()
